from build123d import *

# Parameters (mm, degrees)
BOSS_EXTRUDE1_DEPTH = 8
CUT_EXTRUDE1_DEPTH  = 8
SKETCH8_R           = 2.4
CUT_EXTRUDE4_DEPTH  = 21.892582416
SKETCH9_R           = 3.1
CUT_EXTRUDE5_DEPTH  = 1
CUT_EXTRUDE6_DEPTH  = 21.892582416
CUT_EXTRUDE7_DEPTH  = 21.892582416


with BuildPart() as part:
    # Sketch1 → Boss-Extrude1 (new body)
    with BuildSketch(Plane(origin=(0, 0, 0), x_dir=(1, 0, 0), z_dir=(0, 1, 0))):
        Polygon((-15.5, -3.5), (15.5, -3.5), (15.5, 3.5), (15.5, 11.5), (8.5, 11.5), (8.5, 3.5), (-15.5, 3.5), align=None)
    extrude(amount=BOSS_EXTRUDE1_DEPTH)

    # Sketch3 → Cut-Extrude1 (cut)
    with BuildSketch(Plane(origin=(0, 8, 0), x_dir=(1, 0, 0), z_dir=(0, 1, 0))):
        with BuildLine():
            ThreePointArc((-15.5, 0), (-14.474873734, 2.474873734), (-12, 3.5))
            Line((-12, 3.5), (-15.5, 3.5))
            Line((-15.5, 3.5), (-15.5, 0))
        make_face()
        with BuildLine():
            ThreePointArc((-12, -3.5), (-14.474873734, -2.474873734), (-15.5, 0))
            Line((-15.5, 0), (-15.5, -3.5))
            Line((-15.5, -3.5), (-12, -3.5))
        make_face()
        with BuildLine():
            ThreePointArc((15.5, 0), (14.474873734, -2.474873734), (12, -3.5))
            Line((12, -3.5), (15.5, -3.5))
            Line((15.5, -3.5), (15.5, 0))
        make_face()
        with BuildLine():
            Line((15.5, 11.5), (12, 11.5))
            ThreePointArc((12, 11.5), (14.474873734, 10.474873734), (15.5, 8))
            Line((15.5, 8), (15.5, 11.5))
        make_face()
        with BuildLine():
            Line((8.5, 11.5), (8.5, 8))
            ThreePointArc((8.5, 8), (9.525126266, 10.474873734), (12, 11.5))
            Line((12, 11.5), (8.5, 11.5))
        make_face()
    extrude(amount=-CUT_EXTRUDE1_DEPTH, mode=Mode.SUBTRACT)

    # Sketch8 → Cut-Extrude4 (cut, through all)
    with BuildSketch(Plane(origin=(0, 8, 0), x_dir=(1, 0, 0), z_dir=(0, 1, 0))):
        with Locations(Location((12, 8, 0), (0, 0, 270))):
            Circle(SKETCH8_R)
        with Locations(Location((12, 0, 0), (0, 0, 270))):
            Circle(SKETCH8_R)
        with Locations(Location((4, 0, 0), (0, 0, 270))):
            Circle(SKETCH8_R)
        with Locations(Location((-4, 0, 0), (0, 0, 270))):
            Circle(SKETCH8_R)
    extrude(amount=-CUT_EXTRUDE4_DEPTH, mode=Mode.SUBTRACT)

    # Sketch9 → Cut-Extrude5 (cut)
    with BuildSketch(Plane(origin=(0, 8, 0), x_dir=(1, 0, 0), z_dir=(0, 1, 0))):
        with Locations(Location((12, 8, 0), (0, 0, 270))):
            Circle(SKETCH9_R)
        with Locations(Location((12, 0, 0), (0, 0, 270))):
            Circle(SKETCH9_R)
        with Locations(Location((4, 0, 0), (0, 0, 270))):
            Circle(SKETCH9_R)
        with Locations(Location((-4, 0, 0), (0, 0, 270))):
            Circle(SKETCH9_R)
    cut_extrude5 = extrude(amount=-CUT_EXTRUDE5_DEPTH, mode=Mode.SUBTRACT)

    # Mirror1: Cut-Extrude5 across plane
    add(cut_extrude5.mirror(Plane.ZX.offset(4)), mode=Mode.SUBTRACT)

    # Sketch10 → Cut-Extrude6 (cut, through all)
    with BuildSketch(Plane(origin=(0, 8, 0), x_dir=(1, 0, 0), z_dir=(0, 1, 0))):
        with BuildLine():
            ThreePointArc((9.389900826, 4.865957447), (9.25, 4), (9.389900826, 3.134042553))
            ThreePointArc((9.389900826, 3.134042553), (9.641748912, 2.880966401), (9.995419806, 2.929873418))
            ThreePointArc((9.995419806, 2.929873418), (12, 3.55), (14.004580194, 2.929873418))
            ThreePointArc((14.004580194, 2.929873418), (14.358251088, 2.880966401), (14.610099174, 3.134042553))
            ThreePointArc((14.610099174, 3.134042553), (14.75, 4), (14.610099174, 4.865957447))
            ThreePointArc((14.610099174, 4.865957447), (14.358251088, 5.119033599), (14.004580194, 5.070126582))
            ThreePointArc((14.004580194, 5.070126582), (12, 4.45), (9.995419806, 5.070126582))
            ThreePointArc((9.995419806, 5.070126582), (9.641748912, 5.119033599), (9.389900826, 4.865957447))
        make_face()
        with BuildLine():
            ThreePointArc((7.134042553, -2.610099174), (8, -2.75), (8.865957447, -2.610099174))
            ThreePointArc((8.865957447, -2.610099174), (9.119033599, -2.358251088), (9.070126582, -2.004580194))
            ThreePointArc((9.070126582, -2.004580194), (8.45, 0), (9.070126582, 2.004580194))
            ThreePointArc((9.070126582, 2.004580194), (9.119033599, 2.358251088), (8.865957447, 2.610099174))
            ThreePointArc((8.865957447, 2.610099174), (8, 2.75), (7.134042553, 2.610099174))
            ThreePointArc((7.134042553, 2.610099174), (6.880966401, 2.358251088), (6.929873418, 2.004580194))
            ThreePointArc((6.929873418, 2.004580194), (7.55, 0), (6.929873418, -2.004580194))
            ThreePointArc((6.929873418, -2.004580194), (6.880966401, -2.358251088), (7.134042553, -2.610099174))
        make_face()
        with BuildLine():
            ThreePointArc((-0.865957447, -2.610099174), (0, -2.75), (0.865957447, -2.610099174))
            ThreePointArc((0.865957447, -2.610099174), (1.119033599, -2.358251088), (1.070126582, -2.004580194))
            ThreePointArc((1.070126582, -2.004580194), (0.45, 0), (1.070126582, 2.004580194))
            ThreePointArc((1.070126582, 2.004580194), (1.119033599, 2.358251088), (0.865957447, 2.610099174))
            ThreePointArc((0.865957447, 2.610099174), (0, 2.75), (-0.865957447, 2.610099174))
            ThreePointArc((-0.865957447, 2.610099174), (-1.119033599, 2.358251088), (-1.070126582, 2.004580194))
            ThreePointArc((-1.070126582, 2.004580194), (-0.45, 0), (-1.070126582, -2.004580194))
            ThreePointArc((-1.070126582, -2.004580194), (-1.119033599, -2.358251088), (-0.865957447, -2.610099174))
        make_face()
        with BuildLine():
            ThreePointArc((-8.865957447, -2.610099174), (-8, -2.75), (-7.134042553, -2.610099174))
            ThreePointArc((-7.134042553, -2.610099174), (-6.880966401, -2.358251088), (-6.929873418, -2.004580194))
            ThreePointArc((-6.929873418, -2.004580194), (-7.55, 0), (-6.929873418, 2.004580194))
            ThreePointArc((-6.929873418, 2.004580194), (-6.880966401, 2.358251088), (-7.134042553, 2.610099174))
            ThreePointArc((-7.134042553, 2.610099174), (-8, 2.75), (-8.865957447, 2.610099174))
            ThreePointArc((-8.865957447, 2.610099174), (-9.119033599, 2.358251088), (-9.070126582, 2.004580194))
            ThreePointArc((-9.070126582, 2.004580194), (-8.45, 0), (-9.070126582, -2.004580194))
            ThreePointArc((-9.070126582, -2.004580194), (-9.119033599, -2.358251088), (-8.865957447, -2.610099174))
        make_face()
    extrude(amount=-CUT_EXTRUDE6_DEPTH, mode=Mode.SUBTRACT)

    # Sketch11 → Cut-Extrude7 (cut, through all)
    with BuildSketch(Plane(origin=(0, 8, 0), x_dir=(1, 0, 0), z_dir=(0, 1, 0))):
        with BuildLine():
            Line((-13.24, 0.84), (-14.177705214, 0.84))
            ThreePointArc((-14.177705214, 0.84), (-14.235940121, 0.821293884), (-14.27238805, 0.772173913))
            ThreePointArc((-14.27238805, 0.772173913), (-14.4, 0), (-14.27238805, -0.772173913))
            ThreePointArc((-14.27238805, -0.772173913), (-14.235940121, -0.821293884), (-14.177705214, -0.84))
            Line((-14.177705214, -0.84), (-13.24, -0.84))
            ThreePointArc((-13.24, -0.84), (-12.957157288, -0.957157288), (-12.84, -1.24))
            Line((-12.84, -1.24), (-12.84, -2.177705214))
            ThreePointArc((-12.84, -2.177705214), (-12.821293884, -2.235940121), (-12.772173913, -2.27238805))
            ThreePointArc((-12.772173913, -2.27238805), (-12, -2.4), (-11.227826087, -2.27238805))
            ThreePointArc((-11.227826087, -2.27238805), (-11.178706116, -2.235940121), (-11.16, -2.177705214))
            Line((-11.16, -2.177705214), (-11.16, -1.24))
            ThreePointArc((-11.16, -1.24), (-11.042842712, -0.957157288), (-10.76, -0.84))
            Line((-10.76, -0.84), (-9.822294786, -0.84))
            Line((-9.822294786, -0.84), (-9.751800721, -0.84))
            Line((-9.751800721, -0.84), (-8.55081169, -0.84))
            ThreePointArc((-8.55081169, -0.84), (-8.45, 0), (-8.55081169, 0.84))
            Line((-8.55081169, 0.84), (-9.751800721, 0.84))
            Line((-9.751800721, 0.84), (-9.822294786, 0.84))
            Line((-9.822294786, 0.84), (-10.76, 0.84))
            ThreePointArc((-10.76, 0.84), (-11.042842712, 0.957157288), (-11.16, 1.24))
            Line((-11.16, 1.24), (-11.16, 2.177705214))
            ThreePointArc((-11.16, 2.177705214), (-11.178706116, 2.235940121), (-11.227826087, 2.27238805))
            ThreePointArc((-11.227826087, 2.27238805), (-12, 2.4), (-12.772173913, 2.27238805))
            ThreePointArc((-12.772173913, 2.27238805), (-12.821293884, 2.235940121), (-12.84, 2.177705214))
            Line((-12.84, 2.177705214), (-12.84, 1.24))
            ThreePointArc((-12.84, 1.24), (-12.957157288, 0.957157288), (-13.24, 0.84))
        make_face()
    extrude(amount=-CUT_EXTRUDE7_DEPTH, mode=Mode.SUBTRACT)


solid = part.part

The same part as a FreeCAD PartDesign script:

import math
import FreeCAD as App
import Part
import Sketcher
from FreeCAD import Vector

doc = App.newDocument("Part")
body = doc.addObject("PartDesign::Body", "Body")

# Sketch on XZ plane
sketch1 = body.newObject("Sketcher::SketchObject", "Sketch")
sketch1.AttachmentSupport = (doc.getObject("XZ_Plane"), [""])
sketch1.MapMode = "FlatFace"
sketch1.addGeometry(Part.LineSegment(Vector(-16, 4, 0), Vector(16, 4, 0)), False)
sketch1.addGeometry(Part.LineSegment(Vector(16, 4, 0), Vector(16, -12, 0)), False)
sketch1.addGeometry(Part.LineSegment(Vector(16, -12, 0), Vector(8, -12, 0)), False)
sketch1.addGeometry(Part.LineSegment(Vector(8, -12, 0), Vector(8, -4, 0)), False)
sketch1.addGeometry(Part.LineSegment(Vector(8, -4, 0), Vector(-16, -4, 0)), False)
sketch1.addGeometry(Part.LineSegment(Vector(-16, -4, 0), Vector(-16, 4, 0)), False)
sketch1.addConstraint(Sketcher.Constraint("Coincident", 0, 2, 1, 1))
sketch1.addConstraint(Sketcher.Constraint("Coincident", 1, 2, 2, 1))
sketch1.addConstraint(Sketcher.Constraint("Coincident", 2, 2, 3, 1))
sketch1.addConstraint(Sketcher.Constraint("Coincident", 3, 2, 4, 1))
sketch1.addConstraint(Sketcher.Constraint("Coincident", 4, 2, 5, 1))
sketch1.addConstraint(Sketcher.Constraint("Coincident", 5, 2, 0, 1))
sketch1.addConstraint(Sketcher.Constraint("Horizontal", 0))
sketch1.addConstraint(Sketcher.Constraint("Vertical", 1))
sketch1.addConstraint(Sketcher.Constraint("Horizontal", 2))
sketch1.addConstraint(Sketcher.Constraint("Vertical", 3))
sketch1.addConstraint(Sketcher.Constraint("Horizontal", 4))
sketch1.addConstraint(Sketcher.Constraint("Vertical", 5))
sketch1.addConstraint(Sketcher.Constraint("Symmetric", 0, 2, 4, 2, -1, 1))
sketch1.addConstraint(Sketcher.Constraint("Equal", 2, 5))
sketch1.addConstraint(Sketcher.Constraint("DistanceX", 0, 1, 0, 2, 31.0))
sketch1.addConstraint(Sketcher.Constraint("DistanceX", 2, 2, 2, 1, 7.0))
sketch1.addConstraint(Sketcher.Constraint("DistanceY", 1, 2, 1, 1, 15.0))
pad1 = body.newObject("PartDesign::Pad", "Pad")
pad1.Profile = sketch1
pad1.Length = 8
pad1.Reversed = True

# Sketch on XZ plane
sketch2 = body.newObject("Sketcher::SketchObject", "Sketch001")
sketch2.AttachmentSupport = (doc.getObject("XZ_Plane"), [""])
sketch2.MapMode = "FlatFace"
sketch2.AttachmentOffset = App.Placement(Vector(0, 0, -8), App.Rotation())
sketch2.addGeometry(Part.ArcOfCircle(Part.Circle(Vector(-12, 0, 0), Vector(0, 0, 1), 3.5), math.radians(-180), math.radians(-90)), False)
sketch2.addGeometry(Part.LineSegment(Vector(-12, -3.5, 0), Vector(-15.5, -3.5, 0)), False)
sketch2.addGeometry(Part.LineSegment(Vector(-15.5, -3.5, 0), Vector(-15.5, 0, 0)), False)
sketch2.addGeometry(Part.ArcOfCircle(Part.Circle(Vector(-12, 0, 0), Vector(0, 0, 1), 3.5), math.radians(90), math.radians(180)), False)
sketch2.addGeometry(Part.LineSegment(Vector(-15.5, 0, 0), Vector(-15.5, 3.5, 0)), False)
sketch2.addGeometry(Part.LineSegment(Vector(-15.5, 3.5, 0), Vector(-12, 3.5, 0)), False)
sketch2.addGeometry(Part.ArcOfCircle(Part.Circle(Vector(12, 0, 0), Vector(0, 0, 1), 3.5), math.radians(0), math.radians(90)), False)
sketch2.addGeometry(Part.LineSegment(Vector(12, 3.5, 0), Vector(15.5, 3.5, 0)), False)
sketch2.addGeometry(Part.LineSegment(Vector(15.5, 3.5, 0), Vector(15.5, 0, 0)), False)
sketch2.addGeometry(Part.LineSegment(Vector(15.5, -11.5, 0), Vector(12, -11.5, 0)), False)
sketch2.addGeometry(Part.ArcOfCircle(Part.Circle(Vector(12, -8, 0), Vector(0, 0, 1), 3.5), math.radians(-90), math.radians(0)), False)
sketch2.addGeometry(Part.LineSegment(Vector(15.5, -8, 0), Vector(15.5, -11.5, 0)), False)
sketch2.addGeometry(Part.LineSegment(Vector(8.5, -11.5, 0), Vector(8.5, -8, 0)), False)
sketch2.addGeometry(Part.ArcOfCircle(Part.Circle(Vector(12, -8, 0), Vector(0, 0, 1), 3.5), math.radians(-180), math.radians(-90)), False)
sketch2.addGeometry(Part.LineSegment(Vector(12, -11.5, 0), Vector(8.5, -11.5, 0)), False)
sketch2.addConstraint(Sketcher.Constraint("Tangent", 0, 2, 1, 1))
sketch2.addConstraint(Sketcher.Constraint("Coincident", 1, 2, 2, 1))
sketch2.addConstraint(Sketcher.Constraint("Tangent", 2, 2, 0, 1))
sketch2.addConstraint(Sketcher.Constraint("Tangent", 3, 2, 4, 1))
sketch2.addConstraint(Sketcher.Constraint("Coincident", 4, 2, 5, 1))
sketch2.addConstraint(Sketcher.Constraint("Tangent", 5, 2, 3, 1))
sketch2.addConstraint(Sketcher.Constraint("Tangent", 6, 2, 7, 1))
sketch2.addConstraint(Sketcher.Constraint("Coincident", 7, 2, 8, 1))
sketch2.addConstraint(Sketcher.Constraint("Tangent", 8, 2, 6, 1))
sketch2.addConstraint(Sketcher.Constraint("Tangent", 9, 2, 10, 1))
sketch2.addConstraint(Sketcher.Constraint("Tangent", 10, 2, 11, 1))
sketch2.addConstraint(Sketcher.Constraint("Coincident", 11, 2, 9, 1))
sketch2.addConstraint(Sketcher.Constraint("Tangent", 12, 2, 13, 1))
sketch2.addConstraint(Sketcher.Constraint("Tangent", 13, 2, 14, 1))
sketch2.addConstraint(Sketcher.Constraint("Coincident", 14, 2, 12, 1))
sketch2.addConstraint(Sketcher.Constraint("Horizontal", 1))
sketch2.addConstraint(Sketcher.Constraint("Vertical", 2))
sketch2.addConstraint(Sketcher.Constraint("Vertical", 4))
sketch2.addConstraint(Sketcher.Constraint("Horizontal", 5))
sketch2.addConstraint(Sketcher.Constraint("Horizontal", 7))
sketch2.addConstraint(Sketcher.Constraint("Vertical", 8))
sketch2.addConstraint(Sketcher.Constraint("Horizontal", 9))
sketch2.addConstraint(Sketcher.Constraint("Vertical", 11))
sketch2.addConstraint(Sketcher.Constraint("Vertical", 12))
sketch2.addConstraint(Sketcher.Constraint("Horizontal", 14))
sketch2.addConstraint(Sketcher.Constraint("Coincident", 3, 3, 0, 3))
sketch2.addConstraint(Sketcher.Constraint("Coincident", 13, 3, 10, 3))
sketch2.addConstraint(Sketcher.Constraint("Equal", 0, 3))
sketch2.addConstraint(Sketcher.Constraint("Equal", 3, 6))
sketch2.addConstraint(Sketcher.Constraint("Equal", 6, 10))
sketch2.addConstraint(Sketcher.Constraint("Equal", 10, 13))
sketch2.addConstraint(Sketcher.Constraint("Symmetric", 0, 3, 6, 3, -1, 1))
sketch2.addConstraint(Sketcher.Constraint("PointOnObject", 0, 3, -1))
sketch2.addConstraint(Sketcher.Constraint("Vertical", 6, 3, 10, 3))
sketch2.addConstraint(Sketcher.Constraint("Radius", 0, 3.5))
sketch2.addConstraint(Sketcher.Constraint("DistanceX", 0, 3, -1, 1, 12.0))
sketch2.addConstraint(Sketcher.Constraint("DistanceY", 10, 3, -1, 1, 8.0))
pocket1 = body.newObject("PartDesign::Pocket", "Pocket")
pocket1.Profile = sketch2
pocket1.Length = 8
pocket1.Reversed = True

# Sketch on XZ plane
sketch3 = body.newObject("Sketcher::SketchObject", "Sketch002")
sketch3.AttachmentSupport = (doc.getObject("XZ_Plane"), [""])
sketch3.MapMode = "FlatFace"
sketch3.AttachmentOffset = App.Placement(Vector(0, 0, -8), App.Rotation())
sketch3.addGeometry(Part.Circle(Vector(12, -8, 0), Vector(0, 0, 1), 2.4), False)
sketch3.addGeometry(Part.Circle(Vector(12, 0, 0), Vector(0, 0, 1), 2.4), False)
sketch3.addGeometry(Part.Circle(Vector(4, 0, 0), Vector(0, 0, 1), 2.4), False)
sketch3.addGeometry(Part.Circle(Vector(-4, 0, 0), Vector(0, 0, 1), 2.4), False)
sketch3.addConstraint(Sketcher.Constraint("Equal", 0, 1))
sketch3.addConstraint(Sketcher.Constraint("Equal", 1, 2))
sketch3.addConstraint(Sketcher.Constraint("Equal", 2, 3))
sketch3.addConstraint(Sketcher.Constraint("Symmetric", 2, 3, 3, 3, -1, 1))
sketch3.addConstraint(Sketcher.Constraint("PointOnObject", 1, 3, -1))
sketch3.addConstraint(Sketcher.Constraint("PointOnObject", 2, 3, -1))
sketch3.addConstraint(Sketcher.Constraint("Vertical", 0, 3, 1, 3))
sketch3.addConstraint(Sketcher.Constraint("Diameter", 0, 4.8))
sketch3.addConstraint(Sketcher.Constraint("DistanceX", -1, 1, 0, 3, 12.0))
sketch3.addConstraint(Sketcher.Constraint("DistanceY", 0, 3, -1, 1, 8.0))
sketch3.addConstraint(Sketcher.Constraint("DistanceX", -1, 1, 2, 3, 4.0))
pocket2 = body.newObject("PartDesign::Pocket", "Pocket001")
pocket2.Profile = sketch3
pocket2.Type = "ThroughAll"
pocket2.Reversed = True

# Sketch on XZ plane
sketch4 = body.newObject("Sketcher::SketchObject", "Sketch003")
sketch4.AttachmentSupport = (doc.getObject("XZ_Plane"), [""])
sketch4.MapMode = "FlatFace"
sketch4.AttachmentOffset = App.Placement(Vector(0, 0, -8), App.Rotation())
sketch4.addGeometry(Part.Circle(Vector(12, -8, 0), Vector(0, 0, 1), 3.1), False)
sketch4.addGeometry(Part.Circle(Vector(12, 0, 0), Vector(0, 0, 1), 3.1), False)
sketch4.addGeometry(Part.Circle(Vector(4, 0, 0), Vector(0, 0, 1), 3.1), False)
sketch4.addGeometry(Part.Circle(Vector(-4, 0, 0), Vector(0, 0, 1), 3.1), False)
sketch4.addConstraint(Sketcher.Constraint("Equal", 0, 1))
sketch4.addConstraint(Sketcher.Constraint("Equal", 1, 2))
sketch4.addConstraint(Sketcher.Constraint("Equal", 2, 3))
sketch4.addConstraint(Sketcher.Constraint("Symmetric", 2, 3, 3, 3, -1, 1))
sketch4.addConstraint(Sketcher.Constraint("PointOnObject", 1, 3, -1))
sketch4.addConstraint(Sketcher.Constraint("PointOnObject", 2, 3, -1))
sketch4.addConstraint(Sketcher.Constraint("Vertical", 0, 3, 1, 3))
sketch4.addConstraint(Sketcher.Constraint("Diameter", 0, 6.2))
sketch4.addConstraint(Sketcher.Constraint("DistanceX", -1, 1, 0, 3, 12.0))
sketch4.addConstraint(Sketcher.Constraint("DistanceY", 0, 3, -1, 1, 8.0))
sketch4.addConstraint(Sketcher.Constraint("DistanceX", -1, 1, 2, 3, 4.0))
pocket3 = body.newObject("PartDesign::Pocket", "Pocket002")
pocket3.Profile = sketch4
pocket3.Length = 1
pocket3.Reversed = True
doc.recompute()

datumplane = body.newObject("PartDesign::Plane", "DatumPlane")
datumplane.AttachmentSupport = (doc.getObject("XZ_Plane"), [""])
datumplane.MapMode = "FlatFace"
datumplane.AttachmentOffset = App.Placement(Vector(0, 0, -4), App.Rotation())
mirrored = body.newObject("PartDesign::Mirrored", "Mirrored")
mirrored.Originals = [pocket3]
mirrored.MirrorPlane = (datumplane, [""])
body.Tip = mirrored

# Sketch on XZ plane
sketch5 = body.newObject("Sketcher::SketchObject", "Sketch004")
sketch5.AttachmentSupport = (doc.getObject("XZ_Plane"), [""])
sketch5.MapMode = "FlatFace"
sketch5.AttachmentOffset = App.Placement(Vector(0, 0, -8), App.Rotation())
sketch5.addGeometry(Part.ArcOfCircle(Part.Circle(Vector(12, -4, 0), Vector(0, 0, 1), 2.75), math.radians(162), math.radians(198)), False)
sketch5.addGeometry(Part.ArcOfCircle(Part.Circle(Vector(9.77, -3.26, 0), Vector(0, 0, 1), 0.4), math.radians(56), math.radians(162)), False)
sketch5.addGeometry(Part.ArcOfCircle(Part.Circle(Vector(12, 0, 0), Vector(0, 0, 1), 3.55), math.radians(-124), math.radians(-56)), False)
sketch5.addGeometry(Part.ArcOfCircle(Part.Circle(Vector(14.23, -3.26, 0), Vector(0, 0, 1), 0.4), math.radians(18), math.radians(124)), False)
sketch5.addGeometry(Part.ArcOfCircle(Part.Circle(Vector(12, -4, 0), Vector(0, 0, 1), 2.75), math.radians(-18), math.radians(18)), False)
sketch5.addGeometry(Part.ArcOfCircle(Part.Circle(Vector(14.23, -4.74, 0), Vector(0, 0, 1), 0.4), math.radians(-124), math.radians(-18)), False)
sketch5.addGeometry(Part.ArcOfCircle(Part.Circle(Vector(12, -8, 0), Vector(0, 0, 1), 3.55), math.radians(56), math.radians(124)), False)
sketch5.addGeometry(Part.ArcOfCircle(Part.Circle(Vector(9.77, -4.74, 0), Vector(0, 0, 1), 0.4), math.radians(-162), math.radians(-56)), False)
sketch5.addGeometry(Part.ArcOfCircle(Part.Circle(Vector(8, 0, 0), Vector(0, 0, 1), 2.75), math.radians(72), math.radians(108)), False)
sketch5.addGeometry(Part.ArcOfCircle(Part.Circle(Vector(8.74, 2.23, 0), Vector(0, 0, 1), 0.4), math.radians(-34), math.radians(72)), False)
sketch5.addGeometry(Part.ArcOfCircle(Part.Circle(Vector(12, 0, 0), Vector(0, 0, 1), 3.55), math.radians(146), math.radians(214)), False)
sketch5.addGeometry(Part.ArcOfCircle(Part.Circle(Vector(8.74, -2.23, 0), Vector(0, 0, 1), 0.4), math.radians(-72), math.radians(34)), False)
sketch5.addGeometry(Part.ArcOfCircle(Part.Circle(Vector(8, 0, 0), Vector(0, 0, 1), 2.75), math.radians(-108), math.radians(-72)), False)
sketch5.addGeometry(Part.ArcOfCircle(Part.Circle(Vector(7.26, -2.23, 0), Vector(0, 0, 1), 0.4), math.radians(146), math.radians(252)), False)
sketch5.addGeometry(Part.ArcOfCircle(Part.Circle(Vector(4, 0, 0), Vector(0, 0, 1), 3.55), math.radians(-34), math.radians(34)), False)
sketch5.addGeometry(Part.ArcOfCircle(Part.Circle(Vector(7.26, 2.23, 0), Vector(0, 0, 1), 0.4), math.radians(108), math.radians(214)), False)
sketch5.addGeometry(Part.ArcOfCircle(Part.Circle(Vector(0, 0, 0), Vector(0, 0, 1), 2.75), math.radians(72), math.radians(108)), False)
sketch5.addGeometry(Part.ArcOfCircle(Part.Circle(Vector(0.74, 2.23, 0), Vector(0, 0, 1), 0.4), math.radians(-34), math.radians(72)), False)
sketch5.addGeometry(Part.ArcOfCircle(Part.Circle(Vector(4, 0, 0), Vector(0, 0, 1), 3.55), math.radians(146), math.radians(214)), False)
sketch5.addGeometry(Part.ArcOfCircle(Part.Circle(Vector(0.74, -2.23, 0), Vector(0, 0, 1), 0.4), math.radians(-72), math.radians(34)), False)
sketch5.addGeometry(Part.ArcOfCircle(Part.Circle(Vector(0, 0, 0), Vector(0, 0, 1), 2.75), math.radians(-108), math.radians(-72)), False)
sketch5.addGeometry(Part.ArcOfCircle(Part.Circle(Vector(-0.74, -2.23, 0), Vector(0, 0, 1), 0.4), math.radians(146), math.radians(252)), False)
sketch5.addGeometry(Part.ArcOfCircle(Part.Circle(Vector(-4, 0, 0), Vector(0, 0, 1), 3.55), math.radians(-34), math.radians(34)), False)
sketch5.addGeometry(Part.ArcOfCircle(Part.Circle(Vector(-0.74, 2.23, 0), Vector(0, 0, 1), 0.4), math.radians(108), math.radians(214)), False)
sketch5.addGeometry(Part.ArcOfCircle(Part.Circle(Vector(-8, 0, 0), Vector(0, 0, 1), 2.75), math.radians(72), math.radians(108)), False)
sketch5.addGeometry(Part.ArcOfCircle(Part.Circle(Vector(-7.26, 2.23, 0), Vector(0, 0, 1), 0.4), math.radians(-34), math.radians(72)), False)
sketch5.addGeometry(Part.ArcOfCircle(Part.Circle(Vector(-4, 0, 0), Vector(0, 0, 1), 3.55), math.radians(146), math.radians(214)), False)
sketch5.addGeometry(Part.ArcOfCircle(Part.Circle(Vector(-7.26, -2.23, 0), Vector(0, 0, 1), 0.4), math.radians(-72), math.radians(34)), False)
sketch5.addGeometry(Part.ArcOfCircle(Part.Circle(Vector(-8, 0, 0), Vector(0, 0, 1), 2.75), math.radians(-108), math.radians(-72)), False)
sketch5.addGeometry(Part.ArcOfCircle(Part.Circle(Vector(-8.74, -2.23, 0), Vector(0, 0, 1), 0.4), math.radians(146), math.radians(252)), False)
sketch5.addGeometry(Part.ArcOfCircle(Part.Circle(Vector(-12, 0, 0), Vector(0, 0, 1), 3.55), math.radians(-34), math.radians(34)), False)
sketch5.addGeometry(Part.ArcOfCircle(Part.Circle(Vector(-8.74, 2.23, 0), Vector(0, 0, 1), 0.4), math.radians(108), math.radians(214)), False)
sketch5.addConstraint(Sketcher.Constraint("Tangent", 0, 1, 1, 2))
sketch5.addConstraint(Sketcher.Constraint("Tangent", 1, 1, 2, 1))
sketch5.addConstraint(Sketcher.Constraint("Tangent", 2, 2, 3, 2))
sketch5.addConstraint(Sketcher.Constraint("Tangent", 3, 1, 4, 2))
sketch5.addConstraint(Sketcher.Constraint("Tangent", 4, 1, 5, 2))
sketch5.addConstraint(Sketcher.Constraint("Tangent", 5, 1, 6, 1))
sketch5.addConstraint(Sketcher.Constraint("Tangent", 6, 2, 7, 2))
sketch5.addConstraint(Sketcher.Constraint("Tangent", 7, 1, 0, 2))
sketch5.addConstraint(Sketcher.Constraint("Tangent", 8, 1, 9, 2))
sketch5.addConstraint(Sketcher.Constraint("Tangent", 9, 1, 10, 1))
sketch5.addConstraint(Sketcher.Constraint("Tangent", 10, 2, 11, 2))
sketch5.addConstraint(Sketcher.Constraint("Tangent", 11, 1, 12, 2))
sketch5.addConstraint(Sketcher.Constraint("Tangent", 12, 1, 13, 2))
sketch5.addConstraint(Sketcher.Constraint("Tangent", 13, 1, 14, 1))
sketch5.addConstraint(Sketcher.Constraint("Tangent", 14, 2, 15, 2))
sketch5.addConstraint(Sketcher.Constraint("Tangent", 15, 1, 8, 2))
sketch5.addConstraint(Sketcher.Constraint("Tangent", 16, 1, 17, 2))
sketch5.addConstraint(Sketcher.Constraint("Tangent", 17, 1, 18, 1))
sketch5.addConstraint(Sketcher.Constraint("Tangent", 18, 2, 19, 2))
sketch5.addConstraint(Sketcher.Constraint("Tangent", 19, 1, 20, 2))
sketch5.addConstraint(Sketcher.Constraint("Tangent", 20, 1, 21, 2))
sketch5.addConstraint(Sketcher.Constraint("Tangent", 21, 1, 22, 1))
sketch5.addConstraint(Sketcher.Constraint("Tangent", 22, 2, 23, 2))
sketch5.addConstraint(Sketcher.Constraint("Tangent", 23, 1, 16, 2))
sketch5.addConstraint(Sketcher.Constraint("Tangent", 24, 1, 25, 2))
sketch5.addConstraint(Sketcher.Constraint("Tangent", 25, 1, 26, 1))
sketch5.addConstraint(Sketcher.Constraint("Tangent", 26, 2, 27, 2))
sketch5.addConstraint(Sketcher.Constraint("Tangent", 27, 1, 28, 2))
sketch5.addConstraint(Sketcher.Constraint("Tangent", 28, 1, 29, 2))
sketch5.addConstraint(Sketcher.Constraint("Tangent", 29, 1, 30, 1))
sketch5.addConstraint(Sketcher.Constraint("Tangent", 30, 2, 31, 2))
sketch5.addConstraint(Sketcher.Constraint("Tangent", 31, 1, 24, 2))
sketch5.addConstraint(Sketcher.Constraint("Coincident", 16, 3, -1, 1))
sketch5.addConstraint(Sketcher.Constraint("Coincident", 20, 3, -1, 1))
sketch5.addConstraint(Sketcher.Constraint("Coincident", 4, 3, 0, 3))
sketch5.addConstraint(Sketcher.Constraint("Coincident", 10, 3, 2, 3))
sketch5.addConstraint(Sketcher.Constraint("Coincident", 12, 3, 8, 3))
sketch5.addConstraint(Sketcher.Constraint("Coincident", 18, 3, 14, 3))
sketch5.addConstraint(Sketcher.Constraint("Coincident", 26, 3, 22, 3))
sketch5.addConstraint(Sketcher.Constraint("Coincident", 28, 3, 24, 3))
sketch5.addConstraint(Sketcher.Constraint("Equal", 1, 3))
sketch5.addConstraint(Sketcher.Constraint("Equal", 0, 4))
sketch5.addConstraint(Sketcher.Constraint("Equal", 3, 5))
sketch5.addConstraint(Sketcher.Constraint("Equal", 2, 6))
sketch5.addConstraint(Sketcher.Constraint("Equal", 5, 7))
sketch5.addConstraint(Sketcher.Constraint("Equal", 4, 8))
sketch5.addConstraint(Sketcher.Constraint("Equal", 7, 9))
sketch5.addConstraint(Sketcher.Constraint("Equal", 6, 10))
sketch5.addConstraint(Sketcher.Constraint("Equal", 9, 11))
sketch5.addConstraint(Sketcher.Constraint("Equal", 8, 12))
sketch5.addConstraint(Sketcher.Constraint("Equal", 11, 13))
sketch5.addConstraint(Sketcher.Constraint("Equal", 10, 14))
sketch5.addConstraint(Sketcher.Constraint("Equal", 13, 15))
sketch5.addConstraint(Sketcher.Constraint("Equal", 12, 16))
sketch5.addConstraint(Sketcher.Constraint("Equal", 15, 17))
sketch5.addConstraint(Sketcher.Constraint("Equal", 14, 18))
sketch5.addConstraint(Sketcher.Constraint("Equal", 17, 19))
sketch5.addConstraint(Sketcher.Constraint("Equal", 16, 20))
sketch5.addConstraint(Sketcher.Constraint("Equal", 19, 21))
sketch5.addConstraint(Sketcher.Constraint("Equal", 18, 22))
sketch5.addConstraint(Sketcher.Constraint("Equal", 21, 23))
sketch5.addConstraint(Sketcher.Constraint("Equal", 20, 24))
sketch5.addConstraint(Sketcher.Constraint("Equal", 23, 25))
sketch5.addConstraint(Sketcher.Constraint("Equal", 22, 26))
sketch5.addConstraint(Sketcher.Constraint("Equal", 25, 27))
sketch5.addConstraint(Sketcher.Constraint("Equal", 24, 28))
sketch5.addConstraint(Sketcher.Constraint("Equal", 27, 29))
sketch5.addConstraint(Sketcher.Constraint("Equal", 26, 30))
sketch5.addConstraint(Sketcher.Constraint("Equal", 29, 31))
sketch5.addConstraint(Sketcher.Constraint("Symmetric", 14, 3, 22, 3, -1, 1))
sketch5.addConstraint(Sketcher.Constraint("Symmetric", 8, 3, 24, 3, -1, 1))
sketch5.addConstraint(Sketcher.Constraint("Symmetric", 2, 3, 30, 3, -1, 1))
sketch5.addConstraint(Sketcher.Constraint("Symmetric", 15, 3, 25, 3, -2))
sketch5.addConstraint(Sketcher.Constraint("PointOnObject", 2, 3, -1))
sketch5.addConstraint(Sketcher.Constraint("Horizontal", 1, 3, 3, 3))
sketch5.addConstraint(Sketcher.Constraint("Horizontal", 5, 3, 7, 3))
sketch5.addConstraint(Sketcher.Constraint("Horizontal", 11, 3, 13, 3))
sketch5.addConstraint(Sketcher.Constraint("Horizontal", 15, 3, 17, 3))
sketch5.addConstraint(Sketcher.Constraint("Vertical", 3, 3, 5, 3))
sketch5.addConstraint(Sketcher.Constraint("Radius", 1, 0.4))
sketch5.addConstraint(Sketcher.Constraint("Radius", 0, 2.75))
sketch5.addConstraint(Sketcher.Constraint("Radius", 2, 3.55))
sketch5.addConstraint(Sketcher.Constraint("DistanceX", -1, 1, 0, 3, 12.0))
sketch5.addConstraint(Sketcher.Constraint("DistanceY", 0, 3, -1, 1, 4.0))
pocket4 = body.newObject("PartDesign::Pocket", "Pocket003")
pocket4.Profile = sketch5
pocket4.Type = "ThroughAll"
pocket4.Reversed = True

# Sketch on XZ plane
sketch6 = body.newObject("Sketcher::SketchObject", "Sketch005")
sketch6.AttachmentSupport = (doc.getObject("XZ_Plane"), [""])
sketch6.MapMode = "FlatFace"
sketch6.AttachmentOffset = App.Placement(Vector(0, 0, -8), App.Rotation())
sketch6.addGeometry(Part.LineSegment(Vector(-13.24, -0.84, 0), Vector(-14.18, -0.84, 0)), False)
sketch6.addGeometry(Part.ArcOfCircle(Part.Circle(Vector(-14.18, -0.74, 0), Vector(0, 0, 1), 0.1), math.radians(-161), math.radians(-90)), False)
sketch6.addGeometry(Part.ArcOfCircle(Part.Circle(Vector(-12, 0, 0), Vector(0, 0, 1), 2.4), math.radians(161), math.radians(199)), False)
sketch6.addGeometry(Part.ArcOfCircle(Part.Circle(Vector(-14.18, 0.74, 0), Vector(0, 0, 1), 0.1), math.radians(90), math.radians(161)), False)
sketch6.addGeometry(Part.LineSegment(Vector(-14.18, 0.84, 0), Vector(-13.24, 0.84, 0)), False)
sketch6.addGeometry(Part.ArcOfCircle(Part.Circle(Vector(-13.24, 1.24, 0), Vector(0, 0, 1), 0.4), math.radians(-90), math.radians(0)), False)
sketch6.addGeometry(Part.LineSegment(Vector(-12.84, 1.24, 0), Vector(-12.84, 2.18, 0)), False)
sketch6.addGeometry(Part.ArcOfCircle(Part.Circle(Vector(-12.74, 2.18, 0), Vector(0, 0, 1), 0.1), math.radians(109), math.radians(180)), False)
sketch6.addGeometry(Part.ArcOfCircle(Part.Circle(Vector(-12, 0, 0), Vector(0, 0, 1), 2.4), math.radians(71), math.radians(109)), False)
sketch6.addGeometry(Part.ArcOfCircle(Part.Circle(Vector(-11.26, 2.18, 0), Vector(0, 0, 1), 0.1), math.radians(0), math.radians(71)), False)
sketch6.addGeometry(Part.LineSegment(Vector(-11.16, 2.18, 0), Vector(-11.16, 1.24, 0)), False)
sketch6.addGeometry(Part.ArcOfCircle(Part.Circle(Vector(-10.76, 1.24, 0), Vector(0, 0, 1), 0.4), math.radians(-180), math.radians(-90)), False)
sketch6.addGeometry(Part.LineSegment(Vector(-10.76, 0.84, 0), Vector(-8.55, 0.84, 0)), False)
sketch6.addGeometry(Part.ArcOfCircle(Part.Circle(Vector(-12, 0, 0), Vector(0, 0, 1), 3.55), math.radians(-14), math.radians(14)), False)
sketch6.addGeometry(Part.LineSegment(Vector(-8.55, -0.84, 0), Vector(-10.76, -0.84, 0)), False)
sketch6.addGeometry(Part.ArcOfCircle(Part.Circle(Vector(-10.76, -1.24, 0), Vector(0, 0, 1), 0.4), math.radians(90), math.radians(180)), False)
sketch6.addGeometry(Part.LineSegment(Vector(-11.16, -1.24, 0), Vector(-11.16, -2.18, 0)), False)
sketch6.addGeometry(Part.ArcOfCircle(Part.Circle(Vector(-11.26, -2.18, 0), Vector(0, 0, 1), 0.1), math.radians(-71), math.radians(0)), False)
sketch6.addGeometry(Part.ArcOfCircle(Part.Circle(Vector(-12, 0, 0), Vector(0, 0, 1), 2.4), math.radians(-109), math.radians(-71)), False)
sketch6.addGeometry(Part.ArcOfCircle(Part.Circle(Vector(-12.74, -2.18, 0), Vector(0, 0, 1), 0.1), math.radians(-180), math.radians(-109)), False)
sketch6.addGeometry(Part.LineSegment(Vector(-12.84, -2.18, 0), Vector(-12.84, -1.24, 0)), False)
sketch6.addGeometry(Part.ArcOfCircle(Part.Circle(Vector(-13.24, -1.24, 0), Vector(0, 0, 1), 0.4), math.radians(0), math.radians(90)), False)
sketch6.addConstraint(Sketcher.Constraint("Tangent", 0, 2, 1, 2))
sketch6.addConstraint(Sketcher.Constraint("Tangent", 1, 1, 2, 2))
sketch6.addConstraint(Sketcher.Constraint("Tangent", 2, 1, 3, 2))
sketch6.addConstraint(Sketcher.Constraint("Tangent", 3, 1, 4, 1))
sketch6.addConstraint(Sketcher.Constraint("Tangent", 4, 2, 5, 1))
sketch6.addConstraint(Sketcher.Constraint("Tangent", 5, 2, 6, 1))
sketch6.addConstraint(Sketcher.Constraint("Tangent", 6, 2, 7, 2))
sketch6.addConstraint(Sketcher.Constraint("Tangent", 7, 1, 8, 2))
sketch6.addConstraint(Sketcher.Constraint("Tangent", 8, 1, 9, 2))
sketch6.addConstraint(Sketcher.Constraint("Tangent", 9, 1, 10, 1))
sketch6.addConstraint(Sketcher.Constraint("Tangent", 10, 2, 11, 1))
sketch6.addConstraint(Sketcher.Constraint("Tangent", 11, 2, 12, 1))
sketch6.addConstraint(Sketcher.Constraint("Coincident", 12, 2, 13, 2))
sketch6.addConstraint(Sketcher.Constraint("Coincident", 13, 1, 14, 1))
sketch6.addConstraint(Sketcher.Constraint("Tangent", 14, 2, 15, 1))
sketch6.addConstraint(Sketcher.Constraint("Tangent", 15, 2, 16, 1))
sketch6.addConstraint(Sketcher.Constraint("Tangent", 16, 2, 17, 2))
sketch6.addConstraint(Sketcher.Constraint("Tangent", 17, 1, 18, 2))
sketch6.addConstraint(Sketcher.Constraint("Tangent", 18, 1, 19, 2))
sketch6.addConstraint(Sketcher.Constraint("Tangent", 19, 1, 20, 1))
sketch6.addConstraint(Sketcher.Constraint("Tangent", 20, 2, 21, 1))
sketch6.addConstraint(Sketcher.Constraint("Tangent", 21, 2, 0, 1))
sketch6.addConstraint(Sketcher.Constraint("Horizontal", 0))
sketch6.addConstraint(Sketcher.Constraint("Horizontal", 4))
sketch6.addConstraint(Sketcher.Constraint("Vertical", 6))
sketch6.addConstraint(Sketcher.Constraint("Vertical", 10))
sketch6.addConstraint(Sketcher.Constraint("Horizontal", 12))
sketch6.addConstraint(Sketcher.Constraint("Horizontal", 14))
sketch6.addConstraint(Sketcher.Constraint("Vertical", 16))
sketch6.addConstraint(Sketcher.Constraint("Vertical", 20))
sketch6.addConstraint(Sketcher.Constraint("Coincident", 8, 3, 2, 3))
sketch6.addConstraint(Sketcher.Constraint("Coincident", 13, 3, 2, 3))
sketch6.addConstraint(Sketcher.Constraint("Coincident", 18, 3, 2, 3))
sketch6.addConstraint(Sketcher.Constraint("Equal", 1, 3))
sketch6.addConstraint(Sketcher.Constraint("Equal", 3, 7))
sketch6.addConstraint(Sketcher.Constraint("Equal", 2, 8))
sketch6.addConstraint(Sketcher.Constraint("Equal", 7, 9))
sketch6.addConstraint(Sketcher.Constraint("Equal", 5, 11))
sketch6.addConstraint(Sketcher.Constraint("Equal", 11, 15))
sketch6.addConstraint(Sketcher.Constraint("Equal", 9, 17))
sketch6.addConstraint(Sketcher.Constraint("Equal", 8, 18))
sketch6.addConstraint(Sketcher.Constraint("Equal", 17, 19))
sketch6.addConstraint(Sketcher.Constraint("Equal", 15, 21))
sketch6.addConstraint(Sketcher.Constraint("Symmetric", 1, 3, 3, 3, -1))
sketch6.addConstraint(Sketcher.Constraint("Symmetric", 11, 3, 15, 3, -1))
sketch6.addConstraint(Sketcher.Constraint("Horizontal", 7, 3, 9, 3))
sketch6.addConstraint(Sketcher.Constraint("Horizontal", 5, 3, 11, 3))
sketch6.addConstraint(Sketcher.Constraint("Horizontal", 17, 3, 19, 3))
sketch6.addConstraint(Sketcher.Constraint("Equal", 4, 6))
sketch6.addConstraint(Sketcher.Constraint("Radius", 1, 0.1))
sketch6.addConstraint(Sketcher.Constraint("Radius", 2, 2.4))
sketch6.addConstraint(Sketcher.Constraint("Radius", 5, 0.4))
sketch6.addConstraint(Sketcher.Constraint("Radius", 13, 3.55))
sketch6.addConstraint(Sketcher.Constraint("DistanceX", 2, 3, -1, 1, 12.0))
sketch6.addConstraint(Sketcher.Constraint("DistanceY", 1, 3, -1, 1, 0.74))
pocket5 = body.newObject("PartDesign::Pocket", "Pocket004")
pocket5.Profile = sketch6
pocket5.Type = "ThroughAll"
pocket5.Reversed = True

doc.recompute()
